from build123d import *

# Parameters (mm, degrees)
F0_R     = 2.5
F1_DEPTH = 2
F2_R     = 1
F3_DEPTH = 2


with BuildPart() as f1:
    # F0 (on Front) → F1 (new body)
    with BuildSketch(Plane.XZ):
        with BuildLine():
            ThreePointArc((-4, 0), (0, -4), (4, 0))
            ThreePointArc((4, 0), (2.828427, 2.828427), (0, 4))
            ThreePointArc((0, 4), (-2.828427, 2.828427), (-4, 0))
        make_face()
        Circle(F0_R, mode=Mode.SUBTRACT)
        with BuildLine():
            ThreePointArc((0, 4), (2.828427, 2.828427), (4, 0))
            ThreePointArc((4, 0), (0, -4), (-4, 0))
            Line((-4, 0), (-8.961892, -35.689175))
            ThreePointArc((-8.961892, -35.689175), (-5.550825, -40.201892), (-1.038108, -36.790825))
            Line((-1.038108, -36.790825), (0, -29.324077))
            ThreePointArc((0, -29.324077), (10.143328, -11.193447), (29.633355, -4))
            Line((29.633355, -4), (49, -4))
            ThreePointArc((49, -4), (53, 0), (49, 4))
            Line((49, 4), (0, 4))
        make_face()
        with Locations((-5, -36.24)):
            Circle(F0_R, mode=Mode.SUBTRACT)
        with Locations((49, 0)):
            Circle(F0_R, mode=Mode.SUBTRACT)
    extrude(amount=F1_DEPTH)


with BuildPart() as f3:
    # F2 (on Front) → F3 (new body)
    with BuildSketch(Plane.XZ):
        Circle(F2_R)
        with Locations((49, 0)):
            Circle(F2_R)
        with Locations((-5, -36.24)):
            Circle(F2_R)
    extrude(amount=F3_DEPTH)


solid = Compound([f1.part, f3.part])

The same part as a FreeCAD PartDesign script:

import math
import FreeCAD as App
import Part
import Sketcher

doc = App.newDocument("Part")
body = doc.addObject("PartDesign::Body", "Body")

# Sketch on XZ plane
sketch1 = body.newObject("Sketcher::SketchObject", "Sketch")
sketch1.AttachmentSupport = (doc.getObject("XZ_Plane"), [""])
sketch1.MapMode = "FlatFace"
sketch1.addGeometry(Part.ArcOfCircle(Part.Circle(App.Vector(0, 0, 0), App.Vector(0, 0, 1), 4), math.radians(90.000006), math.radians(179.999994)), False)
sketch1.addGeometry(Part.LineSegment(App.Vector(-4, 0, 0), App.Vector(-8.961892, -35.689175, 0)), False)
sketch1.addGeometry(Part.ArcOfCircle(Part.Circle(App.Vector(-5, -36.24, 0), App.Vector(0, 0, 1), 4), math.radians(172.084861), math.radians(352.084861)), False)
sketch1.addGeometry(Part.LineSegment(App.Vector(-1.038108, -36.790825, 0), App.Vector(0, -29.324077, 0)), False)
sketch1.addGeometry(Part.ArcOfCircle(Part.Circle(App.Vector(29.633354, -33.999999, 0), App.Vector(0, 0, 1), 29.999999), math.radians(89.999999), math.radians(171.033087)), False)
sketch1.addGeometry(Part.LineSegment(App.Vector(29.633355, -4, 0), App.Vector(49, -4, 0)), False)
sketch1.addGeometry(Part.ArcOfCircle(Part.Circle(App.Vector(49, 0, 0), App.Vector(0, 0, 1), 4), math.radians(-90), math.radians(90)), False)
sketch1.addGeometry(Part.LineSegment(App.Vector(49, 4, 0), App.Vector(0, 4, 0)), False)
sketch1.addGeometry(Part.Circle(App.Vector(-5, -36.24, 0), App.Vector(0, 0, 1), 2.5), False)
sketch1.addGeometry(Part.Circle(App.Vector(0, 0, 0), App.Vector(0, 0, 1), 2.5), False)
sketch1.addGeometry(Part.Circle(App.Vector(49, 0, 0), App.Vector(0, 0, 1), 2.5), False)
sketch1.addConstraint(Sketcher.Constraint("Coincident", 0, 2, 1, 1))
sketch1.addConstraint(Sketcher.Constraint("Tangent", 1, 2, 2, 1))
sketch1.addConstraint(Sketcher.Constraint("Tangent", 2, 2, 3, 1))
sketch1.addConstraint(Sketcher.Constraint("Coincident", 3, 2, 4, 2))
sketch1.addConstraint(Sketcher.Constraint("Tangent", 4, 1, 5, 1))
sketch1.addConstraint(Sketcher.Constraint("Tangent", 5, 2, 6, 1))
sketch1.addConstraint(Sketcher.Constraint("Tangent", 6, 2, 7, 1))
sketch1.addConstraint(Sketcher.Constraint("Tangent", 7, 2, 0, 1))
sketch1.addConstraint(Sketcher.Constraint("Horizontal", 5))
sketch1.addConstraint(Sketcher.Constraint("Horizontal", 7))
sketch1.addConstraint(Sketcher.Constraint("Coincident", 0, 3, -1, 1))
sketch1.addConstraint(Sketcher.Constraint("Coincident", 9, 3, -1, 1))
sketch1.addConstraint(Sketcher.Constraint("Coincident", 8, 3, 2, 3))
sketch1.addConstraint(Sketcher.Constraint("Coincident", 10, 3, 6, 3))
sketch1.addConstraint(Sketcher.Constraint("Equal", 0, 2))
sketch1.addConstraint(Sketcher.Constraint("Equal", 2, 6))
sketch1.addConstraint(Sketcher.Constraint("Equal", 8, 9))
sketch1.addConstraint(Sketcher.Constraint("Equal", 9, 10))
sketch1.addConstraint(Sketcher.Constraint("PointOnObject", 0, 2, -1))
sketch1.addConstraint(Sketcher.Constraint("PointOnObject", 3, 2, -2))
sketch1.addConstraint(Sketcher.Constraint("Parallel", 1, 3))
sketch1.addConstraint(Sketcher.Constraint("Diameter", 8, 5.0))
sketch1.addConstraint(Sketcher.Constraint("Radius", 0, 4.0))
sketch1.addConstraint(Sketcher.Constraint("Radius", 4, 29.999999))
sketch1.addConstraint(Sketcher.Constraint("DistanceX", 7, 2, 7, 1, 49.0))
sketch1.addConstraint(Sketcher.Constraint("DistanceX", 2, 3, -1, 1, 5.0))
sketch1.addConstraint(Sketcher.Constraint("DistanceY", 2, 3, -1, 1, 36.24))
pad1 = body.newObject("PartDesign::Pad", "Pad")
pad1.Profile = sketch1
pad1.Length = 2
body2 = doc.addObject("PartDesign::Body", "Body001")
body2.AllowCompound = True

# Sketch on XZ plane
sketch2 = body2.newObject("Sketcher::SketchObject", "Sketch001")
sketch2.AttachmentSupport = (doc.getObject("XZ_Plane001"), [""])
sketch2.MapMode = "FlatFace"
sketch2.addGeometry(Part.Circle(App.Vector(0, 0, 0), App.Vector(0, 0, 1), 1), False)
sketch2.addGeometry(Part.Circle(App.Vector(49, 0, 0), App.Vector(0, 0, 1), 1), False)
sketch2.addGeometry(Part.Circle(App.Vector(-5, -36.24, 0), App.Vector(0, 0, 1), 1), False)
sketch2.addConstraint(Sketcher.Constraint("Coincident", 0, 3, -1, 1))
sketch2.addConstraint(Sketcher.Constraint("Equal", 0, 1))
sketch2.addConstraint(Sketcher.Constraint("Equal", 1, 2))
sketch2.addConstraint(Sketcher.Constraint("PointOnObject", 1, 3, -1))
sketch2.addConstraint(Sketcher.Constraint("Diameter", 0, 2.0))
sketch2.addConstraint(Sketcher.Constraint("DistanceX", -1, 1, 1, 3, 49.0))
sketch2.addConstraint(Sketcher.Constraint("DistanceX", 2, 3, -1, 1, 5.0))
sketch2.addConstraint(Sketcher.Constraint("DistanceY", 2, 3, -1, 1, 36.24))
pad2 = body2.newObject("PartDesign::Pad", "Pad001")
pad2.Profile = sketch2
pad2.Length = 2

doc.recompute()
